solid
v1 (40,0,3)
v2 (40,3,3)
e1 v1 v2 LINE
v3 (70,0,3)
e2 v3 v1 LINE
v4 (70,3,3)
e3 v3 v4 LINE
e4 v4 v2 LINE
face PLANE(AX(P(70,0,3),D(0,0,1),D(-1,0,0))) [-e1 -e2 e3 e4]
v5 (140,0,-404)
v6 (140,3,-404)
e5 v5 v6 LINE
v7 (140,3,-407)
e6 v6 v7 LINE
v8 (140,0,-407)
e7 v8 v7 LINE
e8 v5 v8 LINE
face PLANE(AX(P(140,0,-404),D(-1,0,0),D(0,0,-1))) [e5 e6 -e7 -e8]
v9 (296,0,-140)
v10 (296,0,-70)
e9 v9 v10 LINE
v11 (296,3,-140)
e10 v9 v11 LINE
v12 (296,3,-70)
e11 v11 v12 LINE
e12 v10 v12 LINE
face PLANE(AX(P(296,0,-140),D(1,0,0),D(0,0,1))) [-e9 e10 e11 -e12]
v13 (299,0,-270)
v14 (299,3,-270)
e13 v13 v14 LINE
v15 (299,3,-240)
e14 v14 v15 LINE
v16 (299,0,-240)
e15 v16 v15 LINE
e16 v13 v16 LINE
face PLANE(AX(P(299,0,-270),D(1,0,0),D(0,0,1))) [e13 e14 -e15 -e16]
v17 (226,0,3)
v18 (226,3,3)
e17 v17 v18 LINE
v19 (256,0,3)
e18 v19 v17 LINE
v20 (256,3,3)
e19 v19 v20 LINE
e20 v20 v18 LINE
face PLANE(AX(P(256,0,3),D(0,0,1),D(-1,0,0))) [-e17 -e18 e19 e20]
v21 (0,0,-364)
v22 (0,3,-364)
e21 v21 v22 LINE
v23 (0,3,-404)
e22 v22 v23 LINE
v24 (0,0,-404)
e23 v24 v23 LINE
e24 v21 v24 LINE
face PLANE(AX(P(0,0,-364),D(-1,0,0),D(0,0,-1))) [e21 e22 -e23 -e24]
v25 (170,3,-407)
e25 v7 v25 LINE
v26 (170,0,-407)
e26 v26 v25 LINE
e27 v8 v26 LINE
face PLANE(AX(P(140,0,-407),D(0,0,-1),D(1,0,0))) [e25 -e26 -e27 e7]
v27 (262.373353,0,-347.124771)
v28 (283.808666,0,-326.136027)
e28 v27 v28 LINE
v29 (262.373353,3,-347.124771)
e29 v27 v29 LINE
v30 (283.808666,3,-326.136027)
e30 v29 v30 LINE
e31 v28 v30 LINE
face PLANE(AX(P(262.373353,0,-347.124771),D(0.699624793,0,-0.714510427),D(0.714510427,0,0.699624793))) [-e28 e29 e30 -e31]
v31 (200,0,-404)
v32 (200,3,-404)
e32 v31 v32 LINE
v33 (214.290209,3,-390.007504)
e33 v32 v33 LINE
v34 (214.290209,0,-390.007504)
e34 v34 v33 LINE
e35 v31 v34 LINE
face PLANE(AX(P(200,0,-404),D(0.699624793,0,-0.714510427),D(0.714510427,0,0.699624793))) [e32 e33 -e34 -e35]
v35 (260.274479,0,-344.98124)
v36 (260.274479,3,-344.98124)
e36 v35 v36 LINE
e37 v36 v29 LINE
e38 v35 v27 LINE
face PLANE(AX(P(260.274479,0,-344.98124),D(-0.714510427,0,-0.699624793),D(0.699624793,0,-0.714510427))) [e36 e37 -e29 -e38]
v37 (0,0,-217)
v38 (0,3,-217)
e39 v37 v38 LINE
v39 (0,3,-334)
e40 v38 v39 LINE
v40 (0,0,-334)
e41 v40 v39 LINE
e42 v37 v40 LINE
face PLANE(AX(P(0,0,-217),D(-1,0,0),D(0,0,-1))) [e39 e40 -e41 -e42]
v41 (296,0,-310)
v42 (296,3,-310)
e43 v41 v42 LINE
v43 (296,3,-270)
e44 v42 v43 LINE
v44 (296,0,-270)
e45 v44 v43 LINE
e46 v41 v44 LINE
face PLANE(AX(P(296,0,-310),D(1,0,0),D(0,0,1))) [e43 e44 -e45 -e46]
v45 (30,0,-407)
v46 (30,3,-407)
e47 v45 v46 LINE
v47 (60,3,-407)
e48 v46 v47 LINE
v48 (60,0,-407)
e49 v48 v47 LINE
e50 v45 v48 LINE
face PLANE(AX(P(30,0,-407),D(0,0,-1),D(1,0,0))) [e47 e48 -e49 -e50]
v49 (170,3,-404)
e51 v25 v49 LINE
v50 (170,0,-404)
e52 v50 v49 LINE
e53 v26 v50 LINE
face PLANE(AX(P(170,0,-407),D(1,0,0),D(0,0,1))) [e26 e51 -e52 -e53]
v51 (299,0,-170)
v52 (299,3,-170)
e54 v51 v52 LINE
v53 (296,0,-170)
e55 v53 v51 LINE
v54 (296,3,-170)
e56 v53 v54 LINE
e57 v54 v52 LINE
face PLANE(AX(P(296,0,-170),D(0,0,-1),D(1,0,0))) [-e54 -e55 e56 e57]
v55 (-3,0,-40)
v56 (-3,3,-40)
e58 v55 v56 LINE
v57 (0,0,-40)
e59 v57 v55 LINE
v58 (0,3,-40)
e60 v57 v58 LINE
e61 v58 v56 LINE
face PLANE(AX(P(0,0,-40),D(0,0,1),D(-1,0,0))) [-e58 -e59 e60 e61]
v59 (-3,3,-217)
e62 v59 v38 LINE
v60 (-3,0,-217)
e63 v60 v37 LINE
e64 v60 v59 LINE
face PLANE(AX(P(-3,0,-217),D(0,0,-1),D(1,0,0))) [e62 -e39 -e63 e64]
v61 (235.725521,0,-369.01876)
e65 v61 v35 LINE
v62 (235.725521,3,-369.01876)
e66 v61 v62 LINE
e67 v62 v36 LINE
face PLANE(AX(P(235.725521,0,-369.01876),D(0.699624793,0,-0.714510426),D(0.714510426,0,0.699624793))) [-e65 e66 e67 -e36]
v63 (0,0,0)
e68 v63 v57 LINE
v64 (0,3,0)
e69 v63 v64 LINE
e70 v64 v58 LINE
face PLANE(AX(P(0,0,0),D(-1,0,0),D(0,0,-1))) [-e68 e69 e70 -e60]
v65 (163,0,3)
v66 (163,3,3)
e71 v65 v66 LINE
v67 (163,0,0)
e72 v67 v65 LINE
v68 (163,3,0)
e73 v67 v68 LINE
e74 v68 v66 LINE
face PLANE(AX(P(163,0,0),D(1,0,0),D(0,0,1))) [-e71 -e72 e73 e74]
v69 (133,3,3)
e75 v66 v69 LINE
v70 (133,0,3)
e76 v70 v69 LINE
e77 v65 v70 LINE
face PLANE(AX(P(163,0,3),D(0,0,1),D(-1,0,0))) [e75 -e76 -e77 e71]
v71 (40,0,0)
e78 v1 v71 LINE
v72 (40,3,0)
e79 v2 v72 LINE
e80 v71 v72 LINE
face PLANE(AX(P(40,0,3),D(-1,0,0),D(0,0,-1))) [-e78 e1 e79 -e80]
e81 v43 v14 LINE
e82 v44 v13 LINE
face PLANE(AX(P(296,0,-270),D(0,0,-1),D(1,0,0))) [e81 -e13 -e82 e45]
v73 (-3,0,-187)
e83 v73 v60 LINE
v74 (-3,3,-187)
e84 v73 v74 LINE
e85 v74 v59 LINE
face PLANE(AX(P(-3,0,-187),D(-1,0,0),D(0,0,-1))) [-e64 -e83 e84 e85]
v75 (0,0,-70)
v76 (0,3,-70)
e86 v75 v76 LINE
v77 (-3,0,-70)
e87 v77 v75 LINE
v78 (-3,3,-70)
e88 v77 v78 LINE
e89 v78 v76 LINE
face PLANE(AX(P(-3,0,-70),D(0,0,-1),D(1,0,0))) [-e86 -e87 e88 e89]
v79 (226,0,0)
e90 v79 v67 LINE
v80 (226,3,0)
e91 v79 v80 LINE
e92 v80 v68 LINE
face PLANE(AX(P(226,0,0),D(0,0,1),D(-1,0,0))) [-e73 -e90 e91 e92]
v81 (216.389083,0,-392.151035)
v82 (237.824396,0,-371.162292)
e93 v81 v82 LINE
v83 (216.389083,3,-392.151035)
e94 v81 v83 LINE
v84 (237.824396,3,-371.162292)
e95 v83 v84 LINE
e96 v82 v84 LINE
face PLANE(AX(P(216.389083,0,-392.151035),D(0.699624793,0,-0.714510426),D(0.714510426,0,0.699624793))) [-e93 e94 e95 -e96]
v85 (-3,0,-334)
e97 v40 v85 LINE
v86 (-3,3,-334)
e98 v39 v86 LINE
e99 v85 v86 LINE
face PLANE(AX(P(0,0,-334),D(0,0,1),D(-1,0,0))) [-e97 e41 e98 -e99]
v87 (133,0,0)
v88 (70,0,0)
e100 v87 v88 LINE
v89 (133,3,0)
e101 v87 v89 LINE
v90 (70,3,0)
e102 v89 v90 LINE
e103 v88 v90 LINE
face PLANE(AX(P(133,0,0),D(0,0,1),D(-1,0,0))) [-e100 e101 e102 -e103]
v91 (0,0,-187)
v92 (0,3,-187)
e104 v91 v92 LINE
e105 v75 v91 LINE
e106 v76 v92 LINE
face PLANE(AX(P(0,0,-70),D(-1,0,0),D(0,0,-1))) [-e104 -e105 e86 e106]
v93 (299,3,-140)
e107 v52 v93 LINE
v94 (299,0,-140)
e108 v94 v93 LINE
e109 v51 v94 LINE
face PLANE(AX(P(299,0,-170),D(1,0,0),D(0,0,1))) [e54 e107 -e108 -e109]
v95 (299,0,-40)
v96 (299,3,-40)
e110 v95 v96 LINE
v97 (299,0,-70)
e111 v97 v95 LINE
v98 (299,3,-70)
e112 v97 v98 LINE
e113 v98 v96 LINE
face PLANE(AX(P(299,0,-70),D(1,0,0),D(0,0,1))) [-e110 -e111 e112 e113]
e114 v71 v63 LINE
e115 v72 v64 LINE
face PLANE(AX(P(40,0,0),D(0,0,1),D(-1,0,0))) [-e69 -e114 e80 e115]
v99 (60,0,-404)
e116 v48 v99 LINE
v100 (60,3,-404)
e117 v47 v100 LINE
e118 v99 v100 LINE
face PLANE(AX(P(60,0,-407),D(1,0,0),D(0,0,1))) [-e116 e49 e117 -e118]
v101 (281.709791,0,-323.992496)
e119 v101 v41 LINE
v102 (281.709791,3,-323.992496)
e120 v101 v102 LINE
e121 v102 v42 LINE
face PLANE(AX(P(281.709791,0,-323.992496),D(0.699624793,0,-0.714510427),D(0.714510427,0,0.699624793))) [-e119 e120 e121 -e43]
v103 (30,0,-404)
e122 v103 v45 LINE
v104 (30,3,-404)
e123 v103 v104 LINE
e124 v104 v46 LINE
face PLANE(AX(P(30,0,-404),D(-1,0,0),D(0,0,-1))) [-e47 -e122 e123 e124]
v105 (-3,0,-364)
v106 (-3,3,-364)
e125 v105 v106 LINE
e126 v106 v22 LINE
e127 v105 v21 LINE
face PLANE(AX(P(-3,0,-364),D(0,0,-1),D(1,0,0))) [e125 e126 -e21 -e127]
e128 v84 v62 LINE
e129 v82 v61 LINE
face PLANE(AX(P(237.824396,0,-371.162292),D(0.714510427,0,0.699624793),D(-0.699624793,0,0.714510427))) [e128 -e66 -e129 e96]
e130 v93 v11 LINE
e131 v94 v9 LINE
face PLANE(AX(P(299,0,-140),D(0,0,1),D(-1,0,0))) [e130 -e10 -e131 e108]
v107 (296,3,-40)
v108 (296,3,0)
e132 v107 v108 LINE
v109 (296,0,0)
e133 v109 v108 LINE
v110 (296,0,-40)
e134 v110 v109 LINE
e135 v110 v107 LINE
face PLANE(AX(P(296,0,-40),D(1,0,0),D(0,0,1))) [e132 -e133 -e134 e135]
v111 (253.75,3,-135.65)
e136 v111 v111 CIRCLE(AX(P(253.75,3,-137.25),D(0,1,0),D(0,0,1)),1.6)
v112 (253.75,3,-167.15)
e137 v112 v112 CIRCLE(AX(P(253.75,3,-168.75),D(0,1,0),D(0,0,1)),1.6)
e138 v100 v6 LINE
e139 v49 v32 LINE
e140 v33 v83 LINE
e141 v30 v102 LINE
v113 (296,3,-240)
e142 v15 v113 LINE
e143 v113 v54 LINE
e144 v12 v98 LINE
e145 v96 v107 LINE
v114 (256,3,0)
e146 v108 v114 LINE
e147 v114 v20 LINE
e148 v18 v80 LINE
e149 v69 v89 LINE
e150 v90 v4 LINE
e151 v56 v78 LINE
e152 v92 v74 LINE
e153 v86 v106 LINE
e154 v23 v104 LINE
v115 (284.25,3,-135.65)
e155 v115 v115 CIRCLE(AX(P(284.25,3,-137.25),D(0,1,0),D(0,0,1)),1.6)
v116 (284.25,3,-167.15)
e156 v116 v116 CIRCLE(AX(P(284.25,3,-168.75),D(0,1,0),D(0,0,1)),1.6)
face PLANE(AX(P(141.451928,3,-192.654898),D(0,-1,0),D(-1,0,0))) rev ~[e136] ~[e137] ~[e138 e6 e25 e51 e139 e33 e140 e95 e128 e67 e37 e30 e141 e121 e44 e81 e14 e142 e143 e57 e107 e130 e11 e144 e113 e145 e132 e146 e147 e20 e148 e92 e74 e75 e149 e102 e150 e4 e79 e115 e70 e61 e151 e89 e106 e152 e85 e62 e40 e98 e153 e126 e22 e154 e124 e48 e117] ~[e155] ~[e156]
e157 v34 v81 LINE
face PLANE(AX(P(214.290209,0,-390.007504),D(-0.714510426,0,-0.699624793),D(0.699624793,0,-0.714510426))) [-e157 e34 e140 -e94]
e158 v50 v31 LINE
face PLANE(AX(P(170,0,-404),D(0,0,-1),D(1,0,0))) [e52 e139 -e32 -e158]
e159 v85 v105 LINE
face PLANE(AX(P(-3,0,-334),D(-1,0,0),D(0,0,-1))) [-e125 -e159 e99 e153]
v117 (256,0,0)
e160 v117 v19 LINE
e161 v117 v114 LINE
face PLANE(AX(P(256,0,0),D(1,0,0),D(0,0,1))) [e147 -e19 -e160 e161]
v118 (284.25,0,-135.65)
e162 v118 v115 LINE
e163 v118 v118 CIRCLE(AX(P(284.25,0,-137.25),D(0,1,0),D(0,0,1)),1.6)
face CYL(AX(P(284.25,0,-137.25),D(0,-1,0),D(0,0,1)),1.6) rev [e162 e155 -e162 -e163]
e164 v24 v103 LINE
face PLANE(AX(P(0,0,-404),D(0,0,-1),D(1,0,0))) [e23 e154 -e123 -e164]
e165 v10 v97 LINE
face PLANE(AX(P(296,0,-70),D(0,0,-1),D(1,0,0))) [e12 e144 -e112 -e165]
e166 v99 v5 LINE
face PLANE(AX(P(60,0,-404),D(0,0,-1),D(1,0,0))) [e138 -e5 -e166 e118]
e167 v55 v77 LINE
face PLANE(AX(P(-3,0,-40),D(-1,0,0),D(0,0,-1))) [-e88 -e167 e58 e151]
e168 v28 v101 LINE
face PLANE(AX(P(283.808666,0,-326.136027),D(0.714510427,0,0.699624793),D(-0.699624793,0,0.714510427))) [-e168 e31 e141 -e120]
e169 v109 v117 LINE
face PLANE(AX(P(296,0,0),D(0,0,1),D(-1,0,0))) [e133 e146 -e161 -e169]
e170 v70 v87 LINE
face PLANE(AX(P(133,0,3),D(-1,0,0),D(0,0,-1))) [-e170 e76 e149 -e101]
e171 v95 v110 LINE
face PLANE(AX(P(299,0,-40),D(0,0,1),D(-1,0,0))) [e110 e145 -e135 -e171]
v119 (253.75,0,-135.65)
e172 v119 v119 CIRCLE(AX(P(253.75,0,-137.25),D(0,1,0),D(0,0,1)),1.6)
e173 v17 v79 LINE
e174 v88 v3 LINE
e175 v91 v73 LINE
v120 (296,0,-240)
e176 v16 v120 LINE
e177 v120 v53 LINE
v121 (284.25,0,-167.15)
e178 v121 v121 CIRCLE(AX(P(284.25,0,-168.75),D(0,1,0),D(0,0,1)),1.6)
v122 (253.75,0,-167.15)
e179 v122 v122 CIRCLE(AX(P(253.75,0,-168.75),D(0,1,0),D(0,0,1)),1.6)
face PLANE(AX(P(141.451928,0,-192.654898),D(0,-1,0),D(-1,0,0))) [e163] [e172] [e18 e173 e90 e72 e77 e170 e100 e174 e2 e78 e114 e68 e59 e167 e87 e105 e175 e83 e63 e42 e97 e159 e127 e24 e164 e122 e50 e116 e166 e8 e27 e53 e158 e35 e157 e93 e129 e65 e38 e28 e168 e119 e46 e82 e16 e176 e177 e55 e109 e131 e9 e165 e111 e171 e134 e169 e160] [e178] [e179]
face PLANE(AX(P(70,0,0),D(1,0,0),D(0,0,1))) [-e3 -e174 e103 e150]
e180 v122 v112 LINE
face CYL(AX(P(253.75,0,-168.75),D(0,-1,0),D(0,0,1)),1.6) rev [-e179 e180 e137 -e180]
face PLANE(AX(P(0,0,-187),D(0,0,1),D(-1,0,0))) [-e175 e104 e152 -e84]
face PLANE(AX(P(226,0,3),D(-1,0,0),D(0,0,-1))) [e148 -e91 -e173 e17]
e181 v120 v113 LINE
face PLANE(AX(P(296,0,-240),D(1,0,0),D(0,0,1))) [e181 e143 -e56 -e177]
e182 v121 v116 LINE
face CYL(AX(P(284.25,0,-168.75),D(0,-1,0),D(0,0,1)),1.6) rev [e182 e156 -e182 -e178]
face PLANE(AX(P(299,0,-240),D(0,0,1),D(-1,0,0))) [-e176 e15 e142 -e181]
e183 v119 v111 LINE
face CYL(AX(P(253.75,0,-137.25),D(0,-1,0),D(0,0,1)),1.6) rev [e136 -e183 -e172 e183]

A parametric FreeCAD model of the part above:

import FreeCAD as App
import Part
import Sketcher


def add_polygon(sketch, points):
    """Adds a closed chain of lines whose ends are joined by coincident constraints."""
    first, n = sketch.GeometryCount, len(points)
    for a, b in zip(points, points[1:] + points[:1]):
        sketch.addGeometry(Part.LineSegment(App.Vector(*a, 0), App.Vector(*b, 0)), False)
    for i in range(n):
        sketch.addConstraint(Sketcher.Constraint("Coincident", first + i, 2, first + (i + 1) % n, 1))

doc = App.newDocument("Part")
body = doc.addObject("PartDesign::Body", "Body")

sketch1 = body.newObject("Sketcher::SketchObject", "Sketch")
sketch1.AttachmentSupport = (doc.getObject("XZ_Plane"), [""])
sketch1.MapMode = "FlatFace"
add_polygon(sketch1, [(0, -40), (0, 0), (40, 0), (40, 3), (70, 3), (70, 0), (133, 0), (133, 3), (163, 3), (163, 0), (226, 0), (226, 3), (256, 3), (256, 0), (296, 0), (296, -40), (299, -40), (299, -70), (296, -70), (296, -140), (299, -140), (299, -170), (296, -170), (296, -240), (299, -240), (299, -270), (296, -270), (296, -310), (281.7, -324), (283.8, -326.1), (262.4, -347.1), (260.3, -345), (235.7, -369), (237.8, -371.2), (216.4, -392.2), (214.3, -390), (200, -404), (170, -404), (170, -407), (140, -407), (140, -404), (60, -404), (60, -407), (30, -407), (30, -404), (0, -404), (0, -364), (-3, -364), (-3, -334), (0, -334), (0, -217), (-3, -217), (-3, -187), (0, -187), (0, -70), (-3, -70), (-3, -40)])
sketch1.addGeometry(Part.Circle(App.Vector(284.2, -137.2, 0), App.Vector(0, 0, 1), 1.6), False)
sketch1.addGeometry(Part.Circle(App.Vector(253.8, -137.2, 0), App.Vector(0, 0, 1), 1.6), False)
sketch1.addGeometry(Part.Circle(App.Vector(284.2, -168.8, 0), App.Vector(0, 0, 1), 1.6), False)
sketch1.addGeometry(Part.Circle(App.Vector(253.8, -168.8, 0), App.Vector(0, 0, 1), 1.6), False)
sketch1.addConstraint([
    Sketcher.Constraint("Vertical", 0),
    Sketcher.Constraint("Horizontal", 1),
    Sketcher.Constraint("Vertical", 2),
    Sketcher.Constraint("Horizontal", 3),
    Sketcher.Constraint("Vertical", 4),
    Sketcher.Constraint("Horizontal", 5),
    Sketcher.Constraint("Vertical", 6),
    Sketcher.Constraint("Horizontal", 7),
    Sketcher.Constraint("Vertical", 8),
    Sketcher.Constraint("Horizontal", 9),
    Sketcher.Constraint("Vertical", 10),
    Sketcher.Constraint("Horizontal", 11),
    Sketcher.Constraint("Vertical", 12),
    Sketcher.Constraint("Horizontal", 13),
    Sketcher.Constraint("Vertical", 14),
    Sketcher.Constraint("Horizontal", 15),
    Sketcher.Constraint("Vertical", 16),
    Sketcher.Constraint("Horizontal", 17),
    Sketcher.Constraint("Vertical", 18),
    Sketcher.Constraint("Horizontal", 19),
    Sketcher.Constraint("Vertical", 20),
    Sketcher.Constraint("Horizontal", 21),
    Sketcher.Constraint("Vertical", 22),
    Sketcher.Constraint("Horizontal", 23),
    Sketcher.Constraint("Vertical", 24),
    Sketcher.Constraint("Horizontal", 25),
    Sketcher.Constraint("Vertical", 26),
    Sketcher.Constraint("Horizontal", 36),
    Sketcher.Constraint("Vertical", 37),
    Sketcher.Constraint("Horizontal", 38),
    Sketcher.Constraint("Vertical", 39),
    Sketcher.Constraint("Horizontal", 40),
    Sketcher.Constraint("Vertical", 41),
    Sketcher.Constraint("Horizontal", 42),
    Sketcher.Constraint("Vertical", 43),
    Sketcher.Constraint("Horizontal", 44),
    Sketcher.Constraint("Vertical", 45),
    Sketcher.Constraint("Horizontal", 46),
    Sketcher.Constraint("Vertical", 47),
    Sketcher.Constraint("Horizontal", 48),
    Sketcher.Constraint("Vertical", 49),
    Sketcher.Constraint("Horizontal", 50),
    Sketcher.Constraint("Vertical", 51),
    Sketcher.Constraint("Horizontal", 52),
    Sketcher.Constraint("Vertical", 53),
    Sketcher.Constraint("Horizontal", 54),
    Sketcher.Constraint("Vertical", 55),
    Sketcher.Constraint("Horizontal", 56),
    Sketcher.Constraint("Coincident", 0, 2, -1, 1),
    Sketcher.Constraint("Equal", 57, 58),
    Sketcher.Constraint("Equal", 58, 59),
    Sketcher.Constraint("Equal", 59, 60),
    Sketcher.Constraint("PointOnObject", 4, 2, -1),
    Sketcher.Constraint("PointOnObject", 8, 2, -1),
    Sketcher.Constraint("PointOnObject", 12, 2, -1),
    Sketcher.Constraint("PointOnObject", 44, 2, -2),
    Sketcher.Constraint("PointOnObject", 48, 2, -2),
    Sketcher.Constraint("PointOnObject", 52, 2, -2),
    Sketcher.Constraint("Perpendicular", 27, 28),
    Sketcher.Constraint("Perpendicular", 28, 29),
    Sketcher.Constraint("Perpendicular", 29, 30),
    Sketcher.Constraint("Perpendicular", 30, 31),
    Sketcher.Constraint("Perpendicular", 31, 32),
    Sketcher.Constraint("Perpendicular", 32, 33),
    Sketcher.Constraint("Perpendicular", 33, 34),
    Sketcher.Constraint("Perpendicular", 34, 35),
    Sketcher.Constraint("Horizontal", 57, 3, 58, 3),
    Sketcher.Constraint("Horizontal", 59, 3, 60, 3),
    Sketcher.Constraint("Horizontal", 3, 2, 6, 2),
    Sketcher.Constraint("Horizontal", 7, 2, 10, 2),
    Sketcher.Constraint("Horizontal", 36, 2, 39, 2),
    Sketcher.Constraint("Horizontal", 38, 2, 41, 2),
    Sketcher.Constraint("Horizontal", 40, 2, 43, 2),
    Sketcher.Constraint("Horizontal", 17, 2, 53, 2),
    Sketcher.Constraint("Horizontal", 15, 2, 55, 2),
    Sketcher.Constraint("Vertical", 57, 3, 59, 3),
    Sketcher.Constraint("Vertical", 58, 3, 60, 3),
    Sketcher.Constraint("Vertical", 14, 2, 17, 2),
    Sketcher.Constraint("Vertical", 16, 2, 19, 2),
    Sketcher.Constraint("Vertical", 18, 2, 21, 2),
    Sketcher.Constraint("Vertical", 20, 2, 23, 2),
    Sketcher.Constraint("Vertical", 22, 2, 25, 2),
    Sketcher.Constraint("Vertical", 47, 2, 50, 2),
    Sketcher.Constraint("Vertical", 51, 2, 54, 2),
    Sketcher.Constraint("Equal", 3, 7),
    Sketcher.Constraint("Equal", 5, 9),
    Sketcher.Constraint("Equal", 7, 11),
    Sketcher.Constraint("Equal", 1, 13),
    Sketcher.Constraint("Equal", 11, 36),
    Sketcher.Constraint("Equal", 36, 38),
    Sketcher.Constraint("Equal", 38, 42),
    Sketcher.Constraint("Equal", 42, 44),
    Sketcher.Constraint("Equal", 25, 46),
    Sketcher.Constraint("Equal", 13, 0),
    Sketcher.Constraint("Equal", 56, 2),
    Sketcher.Constraint("Equal", 44, 16),
    Sketcher.Constraint("Equal", 16, 20),
    Sketcher.Constraint("Equal", 18, 22),
    Sketcher.Constraint("Equal", 20, 24),
    Sketcher.Constraint("Equal", 14, 26),
    Sketcher.Constraint("Equal", 12, 37),
    Sketcher.Constraint("Equal", 26, 45),
    Sketcher.Constraint("Equal", 24, 47),
    Sketcher.Constraint("Equal", 47, 51),
    Sketcher.Constraint("Equal", 49, 53),
    Sketcher.Constraint("Equal", 28, 30),
    Sketcher.Constraint("Equal", 30, 32),
    Sketcher.Constraint("Equal", 29, 33),
    Sketcher.Constraint("Equal", 32, 34),
    Sketcher.Constraint("Equal", 27, 35),
    Sketcher.Constraint("Diameter", 57, 3.2),
    Sketcher.Constraint("DistanceX", 1, 1, 1, 2, 40.0),
    Sketcher.Constraint("DistanceX", 3, 1, 3, 2, 30.0),
    Sketcher.Constraint("DistanceX", 5, 1, 5, 2, 63.0),
    Sketcher.Constraint("DistanceX", 15, 1, 15, 2, 3.0),
    Sketcher.Constraint("DistanceX", 40, 2, 40, 1, 80.0),
    Sketcher.Constraint("DistanceY", 18, 2, 18, 1, 70.0),
    Sketcher.Constraint("DistanceY", 49, 1, 49, 2, 117.0),
    Sketcher.Constraint("Distance", 27, 20.0),
    Sketcher.Constraint("Distance", 28, 3.0),
    Sketcher.Constraint("Distance", 29, 30.0),
    Sketcher.Constraint("DistanceX", -1, 1, 57, 3, 284.25),
    Sketcher.Constraint("DistanceY", 57, 3, -1, 1, 137.25),
    Sketcher.Constraint("DistanceX", -1, 1, 58, 3, 253.75),
    Sketcher.Constraint("DistanceY", 59, 3, -1, 1, 168.75),
])
pad1 = body.newObject("PartDesign::Pad", "Pad")
pad1.Profile = sketch1
pad1.Length = 3
pad1.Reversed = True

doc.recompute()
